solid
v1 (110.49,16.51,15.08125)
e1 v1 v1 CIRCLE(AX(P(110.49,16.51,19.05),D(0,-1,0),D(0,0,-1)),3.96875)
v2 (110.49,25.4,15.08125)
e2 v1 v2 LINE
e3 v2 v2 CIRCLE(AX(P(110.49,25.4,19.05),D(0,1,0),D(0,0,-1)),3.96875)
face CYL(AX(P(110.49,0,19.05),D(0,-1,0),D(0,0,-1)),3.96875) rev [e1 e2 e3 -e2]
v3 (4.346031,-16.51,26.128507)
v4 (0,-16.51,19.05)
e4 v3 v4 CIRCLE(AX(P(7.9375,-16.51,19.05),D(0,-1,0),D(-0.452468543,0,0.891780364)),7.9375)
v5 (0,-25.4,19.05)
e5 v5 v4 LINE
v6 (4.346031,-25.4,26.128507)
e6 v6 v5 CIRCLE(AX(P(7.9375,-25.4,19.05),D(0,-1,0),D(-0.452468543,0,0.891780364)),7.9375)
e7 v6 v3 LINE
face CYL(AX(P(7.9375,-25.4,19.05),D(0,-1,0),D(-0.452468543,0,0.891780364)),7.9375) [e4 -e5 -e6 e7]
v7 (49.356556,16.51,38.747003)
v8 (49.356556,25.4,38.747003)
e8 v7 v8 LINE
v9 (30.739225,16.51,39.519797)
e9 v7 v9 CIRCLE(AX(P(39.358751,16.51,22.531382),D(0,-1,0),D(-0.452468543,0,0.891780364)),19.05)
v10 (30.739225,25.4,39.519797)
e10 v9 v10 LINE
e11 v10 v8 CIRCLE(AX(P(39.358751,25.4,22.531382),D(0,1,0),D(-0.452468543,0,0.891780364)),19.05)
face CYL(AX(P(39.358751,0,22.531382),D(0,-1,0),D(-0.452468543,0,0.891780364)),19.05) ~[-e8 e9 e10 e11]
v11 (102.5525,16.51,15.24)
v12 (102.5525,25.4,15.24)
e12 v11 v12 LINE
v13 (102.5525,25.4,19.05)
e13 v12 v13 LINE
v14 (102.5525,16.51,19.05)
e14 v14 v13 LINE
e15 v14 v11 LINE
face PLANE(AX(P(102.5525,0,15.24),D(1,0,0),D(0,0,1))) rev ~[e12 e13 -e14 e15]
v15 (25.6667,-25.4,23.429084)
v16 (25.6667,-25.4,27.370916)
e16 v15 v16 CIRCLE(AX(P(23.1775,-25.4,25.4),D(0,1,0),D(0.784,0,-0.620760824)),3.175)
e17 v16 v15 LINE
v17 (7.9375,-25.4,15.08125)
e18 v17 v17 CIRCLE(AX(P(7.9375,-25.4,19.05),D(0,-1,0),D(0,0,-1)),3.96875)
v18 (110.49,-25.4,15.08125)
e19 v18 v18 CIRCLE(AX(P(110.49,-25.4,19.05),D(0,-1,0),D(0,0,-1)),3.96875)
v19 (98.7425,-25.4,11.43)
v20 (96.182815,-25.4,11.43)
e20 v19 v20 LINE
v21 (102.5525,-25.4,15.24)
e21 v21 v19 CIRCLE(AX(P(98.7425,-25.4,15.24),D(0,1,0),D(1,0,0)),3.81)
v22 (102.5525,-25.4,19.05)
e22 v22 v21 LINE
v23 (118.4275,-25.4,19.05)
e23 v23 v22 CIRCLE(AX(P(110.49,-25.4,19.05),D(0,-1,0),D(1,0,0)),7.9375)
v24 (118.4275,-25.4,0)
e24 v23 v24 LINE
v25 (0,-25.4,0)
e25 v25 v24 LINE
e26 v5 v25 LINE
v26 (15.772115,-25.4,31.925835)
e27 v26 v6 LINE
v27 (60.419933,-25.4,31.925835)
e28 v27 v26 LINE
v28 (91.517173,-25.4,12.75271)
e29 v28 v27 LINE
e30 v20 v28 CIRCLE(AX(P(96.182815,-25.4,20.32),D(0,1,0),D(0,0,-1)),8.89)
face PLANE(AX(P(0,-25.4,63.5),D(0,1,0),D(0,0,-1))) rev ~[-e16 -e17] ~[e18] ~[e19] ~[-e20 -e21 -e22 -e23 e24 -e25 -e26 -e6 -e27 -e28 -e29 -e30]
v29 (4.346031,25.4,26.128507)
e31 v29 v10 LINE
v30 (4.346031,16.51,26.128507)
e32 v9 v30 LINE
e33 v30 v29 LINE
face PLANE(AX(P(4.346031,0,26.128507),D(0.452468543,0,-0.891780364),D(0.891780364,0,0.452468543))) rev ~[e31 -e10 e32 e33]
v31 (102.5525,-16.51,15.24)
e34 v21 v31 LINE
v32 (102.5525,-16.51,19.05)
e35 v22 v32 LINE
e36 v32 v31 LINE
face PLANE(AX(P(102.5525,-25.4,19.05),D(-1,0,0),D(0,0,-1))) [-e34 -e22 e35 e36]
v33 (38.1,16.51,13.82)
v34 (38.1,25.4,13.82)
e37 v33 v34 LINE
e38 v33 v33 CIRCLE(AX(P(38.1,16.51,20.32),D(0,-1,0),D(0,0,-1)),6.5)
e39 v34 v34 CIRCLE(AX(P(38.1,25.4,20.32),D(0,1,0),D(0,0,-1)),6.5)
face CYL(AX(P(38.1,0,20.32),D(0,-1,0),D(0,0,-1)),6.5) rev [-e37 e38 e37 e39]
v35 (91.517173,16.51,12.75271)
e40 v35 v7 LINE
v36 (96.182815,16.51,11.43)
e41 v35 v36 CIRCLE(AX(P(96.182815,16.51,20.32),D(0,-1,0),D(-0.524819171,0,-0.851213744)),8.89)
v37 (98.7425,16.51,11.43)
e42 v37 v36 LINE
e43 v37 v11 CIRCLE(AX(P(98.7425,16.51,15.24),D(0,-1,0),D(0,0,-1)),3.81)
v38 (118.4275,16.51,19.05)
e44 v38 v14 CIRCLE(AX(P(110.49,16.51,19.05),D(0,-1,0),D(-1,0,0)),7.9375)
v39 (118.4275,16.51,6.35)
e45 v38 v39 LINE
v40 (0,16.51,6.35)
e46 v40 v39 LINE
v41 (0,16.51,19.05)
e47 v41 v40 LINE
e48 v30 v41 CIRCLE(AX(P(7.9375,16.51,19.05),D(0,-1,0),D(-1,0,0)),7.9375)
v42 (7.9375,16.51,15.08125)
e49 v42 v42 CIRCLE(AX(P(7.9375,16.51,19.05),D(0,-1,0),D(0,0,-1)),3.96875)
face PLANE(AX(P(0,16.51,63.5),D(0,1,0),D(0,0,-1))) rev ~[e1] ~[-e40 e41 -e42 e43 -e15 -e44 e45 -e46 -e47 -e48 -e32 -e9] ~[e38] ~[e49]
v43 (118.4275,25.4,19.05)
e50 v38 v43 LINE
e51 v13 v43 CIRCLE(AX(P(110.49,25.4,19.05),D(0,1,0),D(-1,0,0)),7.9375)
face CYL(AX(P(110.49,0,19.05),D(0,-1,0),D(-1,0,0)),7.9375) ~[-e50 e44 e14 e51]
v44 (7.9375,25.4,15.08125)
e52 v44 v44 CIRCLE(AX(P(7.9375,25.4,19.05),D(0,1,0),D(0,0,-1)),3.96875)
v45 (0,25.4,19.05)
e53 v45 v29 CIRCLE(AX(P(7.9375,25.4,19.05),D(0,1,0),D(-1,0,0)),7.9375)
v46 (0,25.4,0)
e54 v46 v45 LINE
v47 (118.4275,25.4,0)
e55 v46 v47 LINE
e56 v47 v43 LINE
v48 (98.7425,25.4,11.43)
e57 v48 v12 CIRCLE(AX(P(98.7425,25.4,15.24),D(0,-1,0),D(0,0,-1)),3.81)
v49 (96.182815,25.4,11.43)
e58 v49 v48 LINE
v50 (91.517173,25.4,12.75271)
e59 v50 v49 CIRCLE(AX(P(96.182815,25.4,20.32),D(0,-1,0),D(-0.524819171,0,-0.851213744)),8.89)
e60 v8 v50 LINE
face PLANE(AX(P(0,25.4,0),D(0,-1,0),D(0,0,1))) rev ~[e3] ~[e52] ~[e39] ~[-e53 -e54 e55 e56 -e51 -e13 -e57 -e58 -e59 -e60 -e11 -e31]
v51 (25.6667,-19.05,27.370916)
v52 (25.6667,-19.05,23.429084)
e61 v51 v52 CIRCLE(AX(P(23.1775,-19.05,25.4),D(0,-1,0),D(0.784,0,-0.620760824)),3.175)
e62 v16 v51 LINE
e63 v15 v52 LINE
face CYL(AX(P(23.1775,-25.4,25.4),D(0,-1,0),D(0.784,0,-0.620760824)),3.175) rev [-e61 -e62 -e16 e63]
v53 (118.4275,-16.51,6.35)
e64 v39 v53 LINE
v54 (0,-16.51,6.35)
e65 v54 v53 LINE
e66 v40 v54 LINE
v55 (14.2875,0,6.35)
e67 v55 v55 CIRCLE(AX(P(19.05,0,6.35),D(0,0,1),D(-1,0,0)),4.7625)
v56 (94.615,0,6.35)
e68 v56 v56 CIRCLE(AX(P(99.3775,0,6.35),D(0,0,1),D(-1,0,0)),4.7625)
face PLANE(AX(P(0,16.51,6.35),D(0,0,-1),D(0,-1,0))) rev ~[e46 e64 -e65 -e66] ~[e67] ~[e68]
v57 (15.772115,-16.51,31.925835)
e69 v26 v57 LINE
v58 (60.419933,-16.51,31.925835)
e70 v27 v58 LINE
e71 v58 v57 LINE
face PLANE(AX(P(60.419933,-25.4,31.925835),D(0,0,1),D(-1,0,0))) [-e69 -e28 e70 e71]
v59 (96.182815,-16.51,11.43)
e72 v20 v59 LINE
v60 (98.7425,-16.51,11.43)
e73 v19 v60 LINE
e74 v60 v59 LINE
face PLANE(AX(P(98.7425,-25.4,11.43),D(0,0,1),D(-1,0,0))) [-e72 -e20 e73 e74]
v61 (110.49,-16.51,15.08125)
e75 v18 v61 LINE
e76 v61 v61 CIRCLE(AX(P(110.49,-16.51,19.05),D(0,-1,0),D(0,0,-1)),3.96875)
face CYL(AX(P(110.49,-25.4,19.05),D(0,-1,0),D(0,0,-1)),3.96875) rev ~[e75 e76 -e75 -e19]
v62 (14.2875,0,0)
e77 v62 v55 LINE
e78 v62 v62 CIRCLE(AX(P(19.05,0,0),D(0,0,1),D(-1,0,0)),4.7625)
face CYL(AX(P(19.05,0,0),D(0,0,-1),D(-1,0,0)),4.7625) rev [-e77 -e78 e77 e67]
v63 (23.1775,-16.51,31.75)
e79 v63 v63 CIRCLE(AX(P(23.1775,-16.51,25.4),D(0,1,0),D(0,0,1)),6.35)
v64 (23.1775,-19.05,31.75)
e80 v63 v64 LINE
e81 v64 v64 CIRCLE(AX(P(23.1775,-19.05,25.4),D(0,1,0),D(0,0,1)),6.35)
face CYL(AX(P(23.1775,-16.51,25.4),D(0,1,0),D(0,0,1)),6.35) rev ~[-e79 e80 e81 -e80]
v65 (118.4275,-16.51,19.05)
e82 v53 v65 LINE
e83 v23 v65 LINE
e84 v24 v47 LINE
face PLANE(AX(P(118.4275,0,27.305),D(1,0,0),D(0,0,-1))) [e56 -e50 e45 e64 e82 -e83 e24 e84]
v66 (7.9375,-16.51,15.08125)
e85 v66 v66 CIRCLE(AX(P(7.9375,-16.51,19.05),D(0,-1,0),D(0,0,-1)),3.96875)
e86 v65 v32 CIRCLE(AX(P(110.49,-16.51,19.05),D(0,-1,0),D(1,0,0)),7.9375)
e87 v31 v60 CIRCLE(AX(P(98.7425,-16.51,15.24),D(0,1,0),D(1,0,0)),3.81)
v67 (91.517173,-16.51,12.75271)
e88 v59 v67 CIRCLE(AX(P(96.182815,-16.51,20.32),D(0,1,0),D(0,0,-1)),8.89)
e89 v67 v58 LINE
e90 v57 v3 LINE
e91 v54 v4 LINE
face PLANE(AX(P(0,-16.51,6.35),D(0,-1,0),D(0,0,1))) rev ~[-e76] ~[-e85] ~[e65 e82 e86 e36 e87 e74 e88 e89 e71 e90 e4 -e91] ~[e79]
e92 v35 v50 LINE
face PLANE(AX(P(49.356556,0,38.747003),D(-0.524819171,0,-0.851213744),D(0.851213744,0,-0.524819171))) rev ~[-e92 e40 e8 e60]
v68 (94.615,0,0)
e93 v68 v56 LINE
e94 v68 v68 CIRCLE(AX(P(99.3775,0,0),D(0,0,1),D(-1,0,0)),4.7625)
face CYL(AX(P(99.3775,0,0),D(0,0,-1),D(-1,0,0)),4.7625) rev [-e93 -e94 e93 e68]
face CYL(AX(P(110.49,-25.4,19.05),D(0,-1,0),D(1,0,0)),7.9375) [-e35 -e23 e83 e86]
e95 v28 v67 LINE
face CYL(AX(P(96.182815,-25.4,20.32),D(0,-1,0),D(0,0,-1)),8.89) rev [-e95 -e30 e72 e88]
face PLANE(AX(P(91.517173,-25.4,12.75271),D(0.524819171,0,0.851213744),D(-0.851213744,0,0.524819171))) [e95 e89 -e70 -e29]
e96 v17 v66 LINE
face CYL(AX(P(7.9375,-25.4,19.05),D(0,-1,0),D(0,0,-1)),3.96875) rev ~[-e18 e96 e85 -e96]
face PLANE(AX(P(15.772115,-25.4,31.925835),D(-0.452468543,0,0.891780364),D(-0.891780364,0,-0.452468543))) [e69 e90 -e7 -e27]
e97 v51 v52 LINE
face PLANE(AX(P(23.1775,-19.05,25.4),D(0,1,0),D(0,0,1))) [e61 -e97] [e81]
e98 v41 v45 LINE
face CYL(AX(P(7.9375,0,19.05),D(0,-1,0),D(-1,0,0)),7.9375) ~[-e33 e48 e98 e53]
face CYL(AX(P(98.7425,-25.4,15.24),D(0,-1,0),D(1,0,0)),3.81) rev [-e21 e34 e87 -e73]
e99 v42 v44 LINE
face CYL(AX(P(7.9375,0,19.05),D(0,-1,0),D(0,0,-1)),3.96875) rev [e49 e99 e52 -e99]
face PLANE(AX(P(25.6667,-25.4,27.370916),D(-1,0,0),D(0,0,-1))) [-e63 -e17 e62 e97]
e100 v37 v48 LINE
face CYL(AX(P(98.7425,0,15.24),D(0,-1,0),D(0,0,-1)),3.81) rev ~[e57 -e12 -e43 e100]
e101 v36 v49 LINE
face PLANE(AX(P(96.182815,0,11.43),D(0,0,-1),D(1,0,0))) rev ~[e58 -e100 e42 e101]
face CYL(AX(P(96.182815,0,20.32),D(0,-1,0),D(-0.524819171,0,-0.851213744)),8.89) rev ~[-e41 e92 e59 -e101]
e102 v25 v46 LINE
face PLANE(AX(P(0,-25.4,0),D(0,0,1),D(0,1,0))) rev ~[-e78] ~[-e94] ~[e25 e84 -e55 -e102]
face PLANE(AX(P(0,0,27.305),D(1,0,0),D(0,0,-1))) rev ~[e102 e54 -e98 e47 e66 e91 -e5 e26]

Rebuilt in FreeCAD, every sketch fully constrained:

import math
import FreeCAD as App
import Part
import Sketcher

V = App.Vector
Q = App.Units.Quantity

doc = App.newDocument("Part")
body = doc.addObject("PartDesign::Body", "Body")

sketch1 = body.newObject("Sketcher::SketchObject", "Sketch")
sketch1.AttachmentSupport = (doc.getObject("YZ_Plane"), [""])
sketch1.MapMode = "FlatFace"
sketch1.addGeometry(Part.LineSegment(V(-25, 0, 0), V(25, 0, 0)), False)
sketch1.addGeometry(Part.LineSegment(V(25, 0, 0), V(25, 64, 0)), False)
sketch1.addGeometry(Part.LineSegment(V(25, 64, 0), V(17, 64, 0)), False)
sketch1.addGeometry(Part.LineSegment(V(17, 64, 0), V(17, 6, 0)), False)
sketch1.addGeometry(Part.LineSegment(V(17, 6, 0), V(-17, 6, 0)), False)
sketch1.addGeometry(Part.LineSegment(V(-17, 6, 0), V(-17, 64, 0)), False)
sketch1.addGeometry(Part.LineSegment(V(-17, 64, 0), V(-25, 64, 0)), False)
sketch1.addGeometry(Part.LineSegment(V(-25, 64, 0), V(-25, 0, 0)), False)
sketch1.addConstraint(Sketcher.Constraint("Coincident", 0, 2, 1, 1))
sketch1.addConstraint(Sketcher.Constraint("Coincident", 1, 2, 2, 1))
sketch1.addConstraint(Sketcher.Constraint("Coincident", 2, 2, 3, 1))
sketch1.addConstraint(Sketcher.Constraint("Coincident", 3, 2, 4, 1))
sketch1.addConstraint(Sketcher.Constraint("Coincident", 4, 2, 5, 1))
sketch1.addConstraint(Sketcher.Constraint("Coincident", 5, 2, 6, 1))
sketch1.addConstraint(Sketcher.Constraint("Coincident", 6, 2, 7, 1))
sketch1.addConstraint(Sketcher.Constraint("Coincident", 7, 2, 0, 1))
sketch1.addConstraint(Sketcher.Constraint("Horizontal", 0))
sketch1.addConstraint(Sketcher.Constraint("Vertical", 1))
sketch1.addConstraint(Sketcher.Constraint("Horizontal", 2))
sketch1.addConstraint(Sketcher.Constraint("Vertical", 3))
sketch1.addConstraint(Sketcher.Constraint("Horizontal", 4))
sketch1.addConstraint(Sketcher.Constraint("Vertical", 5))
sketch1.addConstraint(Sketcher.Constraint("Horizontal", 6))
sketch1.addConstraint(Sketcher.Constraint("Vertical", 7))
sketch1.addConstraint(Sketcher.Constraint("Symmetric", 0, 2, 7, 2, -1, 1))
sketch1.addConstraint(Sketcher.Constraint("Symmetric", 2, 2, 5, 2, -2))
sketch1.addConstraint(Sketcher.Constraint("DistanceX", 0, 1, 0, 2, Q("2 in")))
sketch1.addConstraint(Sketcher.Constraint("DistanceX", 4, 2, 4, 1, Q("1.3 in")))
sketch1.addConstraint(Sketcher.Constraint("DistanceY", 1, 1, 1, 2, Q("2.5 in")))
sketch1.addConstraint(Sketcher.Constraint("DistanceY", 3, 2, 3, 1, Q("2.25 in")))
pad1 = body.newObject("PartDesign::Pad", "Pad")
pad1.Profile = sketch1
pad1.Length = Q("4.6625 in")

sketch2 = body.newObject("Sketcher::SketchObject", "Sketch001")
sketch2.AttachmentSupport = (doc.getObject("XZ_Plane"), [""])
sketch2.MapMode = "FlatFace"
sketch2.addGeometry(Part.Circle(V(7.9, 19.1, 0), V(0, 0, 1), 4), False)
sketch2.addGeometry(Part.Circle(V(110.5, 19.1, 0), V(0, 0, 1), 4), False)
sketch2.addGeometry(Part.Circle(V(38.1, 20.3, 0), V(0, 0, 1), 6.5), False)
sketch2.addGeometry(Part.LineSegment(V(0, 19.1, 0), V(0, 63.5, 0)), False)
sketch2.addGeometry(Part.LineSegment(V(0, 63.5, 0), V(118.4, 63.5, 0)), False)
sketch2.addGeometry(Part.LineSegment(V(118.4, 63.5, 0), V(118.4, 19.1, 0)), False)
sketch2.addGeometry(Part.ArcOfCircle(Part.Circle(V(110.5, 19.1, 0), V(0, 0, 1), 7.9), math.radians(0), math.radians(180)), False)
sketch2.addGeometry(Part.LineSegment(V(102.6, 19.1, 0), V(102.6, 15.2, 0)), False)
sketch2.addGeometry(Part.ArcOfCircle(Part.Circle(V(98.7, 15.2, 0), V(0, 0, 1), 3.8), math.radians(-90), math.radians(0)), False)
sketch2.addGeometry(Part.LineSegment(V(98.7, 11.4, 0), V(96.2, 11.4, 0)), False)
sketch2.addGeometry(Part.ArcOfCircle(Part.Circle(V(96.2, 20.3, 0), V(0, 0, 1), 8.9), math.radians(-122), math.radians(-90)), False)
sketch2.addGeometry(Part.LineSegment(V(91.5, 12.8, 0), V(49.4, 38.7, 0)), False)
sketch2.addGeometry(Part.ArcOfCircle(Part.Circle(V(39.4, 22.5, 0), V(0, 0, 1), 19.1), math.radians(58), math.radians(117)), False)
sketch2.addGeometry(Part.LineSegment(V(30.7, 39.5, 0), V(4.3, 26.1, 0)), False)
sketch2.addGeometry(Part.ArcOfCircle(Part.Circle(V(7.9, 19.1, 0), V(0, 0, 1), 7.9), math.radians(117), math.radians(180)), False)
sketch2.addConstraint(Sketcher.Constraint("Coincident", 3, 2, 4, 1))
sketch2.addConstraint(Sketcher.Constraint("Coincident", 4, 2, 5, 1))
sketch2.addConstraint(Sketcher.Constraint("Tangent", 5, 2, 6, 1))
sketch2.addConstraint(Sketcher.Constraint("Tangent", 6, 2, 7, 1))
sketch2.addConstraint(Sketcher.Constraint("Tangent", 7, 2, 8, 2))
sketch2.addConstraint(Sketcher.Constraint("Tangent", 8, 1, 9, 1))
sketch2.addConstraint(Sketcher.Constraint("Tangent", 9, 2, 10, 2))
sketch2.addConstraint(Sketcher.Constraint("Tangent", 10, 1, 11, 1))
sketch2.addConstraint(Sketcher.Constraint("Tangent", 11, 2, 12, 1))
sketch2.addConstraint(Sketcher.Constraint("Tangent", 12, 2, 13, 1))
sketch2.addConstraint(Sketcher.Constraint("Tangent", 13, 2, 14, 1))
sketch2.addConstraint(Sketcher.Constraint("Tangent", 14, 2, 3, 1))
sketch2.addConstraint(Sketcher.Constraint("Vertical", 3))
sketch2.addConstraint(Sketcher.Constraint("Horizontal", 4))
sketch2.addConstraint(Sketcher.Constraint("Vertical", 5))
sketch2.addConstraint(Sketcher.Constraint("Vertical", 7))
sketch2.addConstraint(Sketcher.Constraint("Horizontal", 9))
sketch2.addConstraint(Sketcher.Constraint("Coincident", 6, 3, 1, 3))
sketch2.addConstraint(Sketcher.Constraint("Coincident", 14, 3, 0, 3))
sketch2.addConstraint(Sketcher.Constraint("Equal", 0, 1))
sketch2.addConstraint(Sketcher.Constraint("Equal", 6, 14))
sketch2.addConstraint(Sketcher.Constraint("PointOnObject", 3, 2, -2))
sketch2.addConstraint(Sketcher.Constraint("Horizontal", 0, 3, 1, 3))
sketch2.addConstraint(Sketcher.Constraint("Horizontal", 2, 3, 10, 3))
sketch2.addConstraint(Sketcher.Constraint("Radius", 8, Q("0.15 in")))
sketch2.addConstraint(Sketcher.Constraint("Radius", 10, Q("0.35 in")))
sketch2.addConstraint(Sketcher.Constraint("Radius", 12, Q("0.75 in")))
sketch2.addConstraint(Sketcher.Constraint("Diameter", 0, Q("0.3125 in")))
sketch2.addConstraint(Sketcher.Constraint("Radius", 6, Q("0.3125 in")))
sketch2.addConstraint(Sketcher.Constraint("DistanceY", 3, 1, 3, 2, Q("1.75 in")))
sketch2.addConstraint(Sketcher.Constraint("DistanceY", 7, 2, 7, 1, Q("0.15 in")))
sketch2.addConstraint(Sketcher.Constraint("DistanceX", -1, 1, 2, 3, Q("1.5 in")))
sketch2.addConstraint(Sketcher.Constraint("DistanceY", -1, 1, 2, 3, Q("0.8 in")))
sketch2.addConstraint(Sketcher.Constraint("Distance", 11, Q("1.95 in")))
sketch2.addConstraint(Sketcher.Constraint("Diameter", 2, Q("13 mm")))
sketch2.addConstraint(Sketcher.Constraint("DistanceX", -1, 1, 1, 3, Q("4.35 in")))
sketch2.addConstraint(Sketcher.Constraint("Distance", 13, Q("29.59607 mm")))
sketch2.addConstraint(Sketcher.Constraint("DistanceX", 9, 2, 9, 1, Q("2.559685 mm")))
pocket1 = body.newObject("PartDesign::Pocket", "Pocket")
pocket1.Profile = sketch2
pocket1.Length = Q("1 in")

sketch3 = body.newObject("Sketcher::SketchObject", "Sketch002")
sketch3.AttachmentSupport = (doc.getObject("XZ_Plane"), [""])
sketch3.MapMode = "FlatFace"
sketch3.AttachmentOffset = App.Placement(V(0, 0, 1 * 25.4), App.Rotation())
sketch3.addGeometry(Part.Circle(V(110.5, 19.1, 0), V(0, 0, 1), 4), False)
sketch3.addGeometry(Part.Circle(V(7.9, 19.1, 0), V(0, 0, 1), 4), False)
sketch3.addGeometry(Part.LineSegment(V(0, 63.5, 0), V(0, 19.1, 0)), False)
sketch3.addGeometry(Part.ArcOfCircle(Part.Circle(V(7.9, 19.1, 0), V(0, 0, 1), 7.9), math.radians(117), math.radians(180)), False)
sketch3.addGeometry(Part.LineSegment(V(4.3, 26.1, 0), V(15.8, 31.9, 0)), False)
sketch3.addGeometry(Part.LineSegment(V(15.8, 31.9, 0), V(60.4, 31.9, 0)), False)
sketch3.addGeometry(Part.LineSegment(V(60.4, 31.9, 0), V(91.5, 12.8, 0)), False)
sketch3.addGeometry(Part.ArcOfCircle(Part.Circle(V(96.2, 20.3, 0), V(0, 0, 1), 8.9), math.radians(-122), math.radians(-90)), False)
sketch3.addGeometry(Part.LineSegment(V(96.2, 11.4, 0), V(98.7, 11.4, 0)), False)
sketch3.addGeometry(Part.ArcOfCircle(Part.Circle(V(98.7, 15.2, 0), V(0, 0, 1), 3.8), math.radians(-90), math.radians(0)), False)
sketch3.addGeometry(Part.LineSegment(V(102.6, 15.2, 0), V(102.6, 19.1, 0)), False)
sketch3.addGeometry(Part.ArcOfCircle(Part.Circle(V(110.5, 19.1, 0), V(0, 0, 1), 7.9), math.radians(0), math.radians(180)), False)
sketch3.addGeometry(Part.LineSegment(V(118.4, 19.1, 0), V(118.4, 63.5, 0)), False)
sketch3.addGeometry(Part.LineSegment(V(118.4, 63.5, 0), V(0, 63.5, 0)), False)
sketch3.addGeometry(Part.LineSegment(V(25.7, 23.4, 0), V(25.7, 27.4, 0)), False)
sketch3.addGeometry(Part.ArcOfCircle(Part.Circle(V(23.2, 25.4, 0), V(0, 0, 1), 3.2), math.radians(38), math.radians(322)), False)
sketch3.addConstraint(Sketcher.Constraint("Tangent", 2, 2, 3, 2))
sketch3.addConstraint(Sketcher.Constraint("Tangent", 3, 1, 4, 1))
sketch3.addConstraint(Sketcher.Constraint("Coincident", 4, 2, 5, 1))
sketch3.addConstraint(Sketcher.Constraint("Coincident", 5, 2, 6, 1))
sketch3.addConstraint(Sketcher.Constraint("Tangent", 6, 2, 7, 1))
sketch3.addConstraint(Sketcher.Constraint("Tangent", 7, 2, 8, 1))
sketch3.addConstraint(Sketcher.Constraint("Tangent", 8, 2, 9, 1))
sketch3.addConstraint(Sketcher.Constraint("Tangent", 9, 2, 10, 1))
sketch3.addConstraint(Sketcher.Constraint("Tangent", 10, 2, 11, 2))
sketch3.addConstraint(Sketcher.Constraint("Tangent", 11, 1, 12, 1))
sketch3.addConstraint(Sketcher.Constraint("Coincident", 12, 2, 13, 1))
sketch3.addConstraint(Sketcher.Constraint("Coincident", 13, 2, 2, 1))
sketch3.addConstraint(Sketcher.Constraint("Coincident", 14, 1, 15, 2))
sketch3.addConstraint(Sketcher.Constraint("Coincident", 15, 1, 14, 2))
sketch3.addConstraint(Sketcher.Constraint("Vertical", 2))
sketch3.addConstraint(Sketcher.Constraint("Horizontal", 5))
sketch3.addConstraint(Sketcher.Constraint("Horizontal", 8))
sketch3.addConstraint(Sketcher.Constraint("Vertical", 10))
sketch3.addConstraint(Sketcher.Constraint("Vertical", 12))
sketch3.addConstraint(Sketcher.Constraint("Horizontal", 13))
sketch3.addConstraint(Sketcher.Constraint("Vertical", 14))
sketch3.addConstraint(Sketcher.Constraint("Coincident", 3, 3, 1, 3))
sketch3.addConstraint(Sketcher.Constraint("Coincident", 11, 3, 0, 3))
sketch3.addConstraint(Sketcher.Constraint("Equal", 0, 1))
sketch3.addConstraint(Sketcher.Constraint("Equal", 3, 11))
sketch3.addConstraint(Sketcher.Constraint("PointOnObject", 2, 2, -2))
sketch3.addConstraint(Sketcher.Constraint("Horizontal", 0, 3, 1, 3))
sketch3.addConstraint(Sketcher.Constraint("Radius", 7, Q("0.35 in")))
sketch3.addConstraint(Sketcher.Constraint("Radius", 9, Q("0.15 in")))
sketch3.addConstraint(Sketcher.Constraint("Diameter", 0, Q("0.3125 in")))
sketch3.addConstraint(Sketcher.Constraint("DistanceY", -1, 1, 15, 3, Q("1 in")))
sketch3.addConstraint(Sketcher.Constraint("Radius", 3, Q("0.3125 in")))
sketch3.addConstraint(Sketcher.Constraint("Radius", 15, Q("0.125 in")))
sketch3.addConstraint(Sketcher.Constraint("DistanceY", 2, 2, 2, 1, Q("1.75 in")))
sketch3.addConstraint(Sketcher.Constraint("DistanceY", 10, 1, 10, 2, Q("0.15 in")))
sketch3.addConstraint(Sketcher.Constraint("DistanceY", -1, 1, 7, 3, Q("0.8 in")))
sketch3.addConstraint(Sketcher.Constraint("DistanceX", 1, 3, 15, 3, Q("0.6 in")))
sketch3.addConstraint(Sketcher.Constraint("DistanceX", -1, 1, 0, 3, Q("4.35 in")))
sketch3.addConstraint(Sketcher.Constraint("DistanceX", 15, 3, 14, 1, Q("0.098 in")))
sketch3.addConstraint(Sketcher.Constraint("Distance", 6, Q("1.4383001 in")))
sketch3.addConstraint(Sketcher.Constraint("DistanceX", 5, 1, 5, 2, Q("44.647818 mm")))
sketch3.addConstraint(Sketcher.Constraint("DistanceX", 8, 1, 8, 2, Q("2.559685 mm")))
sketch3.addConstraint(Sketcher.Constraint("DistanceX", -1, 1, 3, 1, Q("4.346031 mm")))
pocket2 = body.newObject("PartDesign::Pocket", "Pocket001")
pocket2.Profile = sketch3
pocket2.Length = Q("0.35 in")

sketch4 = body.newObject("Sketcher::SketchObject", "Sketch003")
sketch4.AttachmentSupport = (doc.getObject("XY_Plane"), [""])
sketch4.MapMode = "FlatFace"
sketch4.addGeometry(Part.Circle(V(19.1, 0, 0), V(0, 0, 1), 4.8), False)
sketch4.addGeometry(Part.Circle(V(99.4, 0, 0), V(0, 0, 1), 4.8), False)
sketch4.addConstraint(Sketcher.Constraint("Equal", 0, 1))
sketch4.addConstraint(Sketcher.Constraint("PointOnObject", 0, 3, -1))
sketch4.addConstraint(Sketcher.Constraint("PointOnObject", 1, 3, -1))
sketch4.addConstraint(Sketcher.Constraint("Diameter", 0, Q("0.375 in")))
sketch4.addConstraint(Sketcher.Constraint("DistanceX", -1, 1, 0, 3, Q("0.75 in")))
sketch4.addConstraint(Sketcher.Constraint("DistanceX", -1, 1, 1, 3, Q("3.9125 in")))
pocket3 = body.newObject("PartDesign::Pocket", "Pocket002")
pocket3.Profile = sketch4
pocket3.Length = Q("0.25 in")
pocket3.Reversed = True

sketch5 = body.newObject("Sketcher::SketchObject", "Sketch004")
sketch5.AttachmentSupport = (doc.getObject("XZ_Plane"), [""])
sketch5.MapMode = "FlatFace"
sketch5.AttachmentOffset = App.Placement(V(0, 0, 0.65 * 25.4), App.Rotation())
sketch5.addGeometry(Part.Circle(V(23, 25, 0), V(0, 0, 1), 6), False)
sketch5.addConstraint(Sketcher.Constraint("Diameter", 0, Q("0.5 in")))
sketch5.addConstraint(Sketcher.Constraint("DistanceY", -1, 1, 0, 3, Q("1 in")))
sketch5.addConstraint(Sketcher.Constraint("DistanceX", -1, 1, 0, 3, Q("0.9125 in")))
pocket4 = body.newObject("PartDesign::Pocket", "Pocket003")
pocket4.Profile = sketch5
pocket4.Length = Q("0.1 in")
pocket4.Reversed = True

doc.recompute()
